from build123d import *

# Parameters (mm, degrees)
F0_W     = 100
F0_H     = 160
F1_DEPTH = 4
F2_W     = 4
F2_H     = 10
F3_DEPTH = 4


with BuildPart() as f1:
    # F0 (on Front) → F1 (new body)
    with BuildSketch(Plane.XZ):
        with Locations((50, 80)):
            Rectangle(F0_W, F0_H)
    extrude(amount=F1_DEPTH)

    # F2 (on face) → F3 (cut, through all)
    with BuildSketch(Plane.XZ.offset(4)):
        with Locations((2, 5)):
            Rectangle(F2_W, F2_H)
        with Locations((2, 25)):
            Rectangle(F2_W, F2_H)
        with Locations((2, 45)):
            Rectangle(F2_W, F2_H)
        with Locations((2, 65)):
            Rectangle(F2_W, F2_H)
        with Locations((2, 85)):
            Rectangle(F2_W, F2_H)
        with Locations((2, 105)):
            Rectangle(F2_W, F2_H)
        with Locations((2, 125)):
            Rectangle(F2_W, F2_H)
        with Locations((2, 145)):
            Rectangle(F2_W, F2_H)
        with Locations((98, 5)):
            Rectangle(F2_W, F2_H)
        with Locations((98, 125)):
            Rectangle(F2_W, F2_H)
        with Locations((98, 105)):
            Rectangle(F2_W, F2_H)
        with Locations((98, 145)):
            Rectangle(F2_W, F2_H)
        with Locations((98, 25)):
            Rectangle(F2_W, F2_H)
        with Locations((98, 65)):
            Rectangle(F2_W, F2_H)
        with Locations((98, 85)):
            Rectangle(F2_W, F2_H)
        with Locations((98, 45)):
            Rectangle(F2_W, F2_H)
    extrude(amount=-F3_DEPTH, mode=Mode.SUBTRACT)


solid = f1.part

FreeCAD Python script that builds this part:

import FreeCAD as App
import Part
import Sketcher
from FreeCAD import Vector


def add_polygon(sketch, points):
    """Adds a closed chain of lines whose ends are joined by coincident constraints."""
    first, n = sketch.GeometryCount, len(points)
    for a, b in zip(points, points[1:] + points[:1]):
        sketch.addGeometry(Part.LineSegment(App.Vector(*a, 0), App.Vector(*b, 0)), False)
    for i in range(n):
        sketch.addConstraint(Sketcher.Constraint("Coincident", first + i, 2, first + (i + 1) % n, 1))

doc = App.newDocument("Part")
body = doc.addObject("PartDesign::Body", "Body")

# Sketch on XZ plane
sketch1 = doc.addObject("Sketcher::SketchObject", "Sketch")
body.addObject(sketch1)
sketch1.AttachmentSupport = (doc.XZ_Plane, [""])
sketch1.MapMode = "FlatFace"
add_polygon(sketch1, [(0, 160), (0, 0), (100, 0), (100, 160)])  # lines 0-3
sketch1.addConstraint(Sketcher.Constraint("Vertical", 0))
sketch1.addConstraint(Sketcher.Constraint("Horizontal", 1))
sketch1.addConstraint(Sketcher.Constraint("Vertical", 2))
sketch1.addConstraint(Sketcher.Constraint("Horizontal", 3))
sketch1.addConstraint(Sketcher.Constraint("Coincident", 0, 2, -1, 1))
sketch1.addConstraint(Sketcher.Constraint("DistanceX", 1, 1, 1, 2, 100.0))
sketch1.addConstraint(Sketcher.Constraint("DistanceY", 0, 2, 0, 1, 160.0))
pad1 = doc.addObject("PartDesign::Pad", "Pad")
body.addObject(pad1)
pad1.Profile = sketch1
pad1.Length = 4

# Sketch on XZ plane
sketch2 = doc.addObject("Sketcher::SketchObject", "Sketch001")
body.addObject(sketch2)
sketch2.AttachmentSupport = (doc.XZ_Plane, [""])
sketch2.MapMode = "FlatFace"
sketch2.AttachmentOffset = App.Placement(Vector(0, 0, 4), App.Rotation())
add_polygon(sketch2, [(0, 10), (0, 0), (4, 0), (4, 10)])  # lines 0-3
add_polygon(sketch2, [(0, 30), (0, 20), (4, 20), (4, 30)])  # lines 4-7
add_polygon(sketch2, [(0, 50), (0, 40), (4, 40), (4, 50)])  # lines 8-11
add_polygon(sketch2, [(0, 70), (0, 60), (4, 60), (4, 70)])  # lines 12-15
add_polygon(sketch2, [(0, 90), (0, 80), (4, 80), (4, 90)])  # lines 16-19
add_polygon(sketch2, [(0, 110), (0, 100), (4, 100), (4, 110)])  # lines 20-23
add_polygon(sketch2, [(0, 130), (0, 120), (4, 120), (4, 130)])  # lines 24-27
add_polygon(sketch2, [(0, 150), (0, 140), (4, 140), (4, 150)])  # lines 28-31
add_polygon(sketch2, [(96, 10), (96, 0), (100, 0), (100, 10)])  # lines 32-35
add_polygon(sketch2, [(96, 130), (96, 120), (100, 120), (100, 130)])  # lines 36-39
add_polygon(sketch2, [(96, 110), (96, 100), (100, 100), (100, 110)])  # lines 40-43
add_polygon(sketch2, [(96, 150), (96, 140), (100, 140), (100, 150)])  # lines 44-47
add_polygon(sketch2, [(96, 30), (96, 20), (100, 20), (100, 30)])  # lines 48-51
add_polygon(sketch2, [(96, 70), (96, 60), (100, 60), (100, 70)])  # lines 52-55
add_polygon(sketch2, [(96, 90), (96, 80), (100, 80), (100, 90)])  # lines 56-59
add_polygon(sketch2, [(96, 50), (96, 40), (100, 40), (100, 50)])  # lines 60-63
sketch2.addConstraint(Sketcher.Constraint("Vertical", 0))
sketch2.addConstraint(Sketcher.Constraint("Horizontal", 1))
sketch2.addConstraint(Sketcher.Constraint("Vertical", 2))
sketch2.addConstraint(Sketcher.Constraint("Horizontal", 3))
sketch2.addConstraint(Sketcher.Constraint("Vertical", 4))
sketch2.addConstraint(Sketcher.Constraint("Horizontal", 5))
sketch2.addConstraint(Sketcher.Constraint("Vertical", 6))
sketch2.addConstraint(Sketcher.Constraint("Horizontal", 7))
sketch2.addConstraint(Sketcher.Constraint("Vertical", 8))
sketch2.addConstraint(Sketcher.Constraint("Horizontal", 9))
sketch2.addConstraint(Sketcher.Constraint("Vertical", 10))
sketch2.addConstraint(Sketcher.Constraint("Horizontal", 11))
sketch2.addConstraint(Sketcher.Constraint("Vertical", 12))
sketch2.addConstraint(Sketcher.Constraint("Horizontal", 13))
sketch2.addConstraint(Sketcher.Constraint("Vertical", 14))
sketch2.addConstraint(Sketcher.Constraint("Horizontal", 15))
sketch2.addConstraint(Sketcher.Constraint("Vertical", 16))
sketch2.addConstraint(Sketcher.Constraint("Horizontal", 17))
sketch2.addConstraint(Sketcher.Constraint("Vertical", 18))
sketch2.addConstraint(Sketcher.Constraint("Horizontal", 19))
sketch2.addConstraint(Sketcher.Constraint("Vertical", 20))
sketch2.addConstraint(Sketcher.Constraint("Horizontal", 21))
sketch2.addConstraint(Sketcher.Constraint("Vertical", 22))
sketch2.addConstraint(Sketcher.Constraint("Horizontal", 23))
sketch2.addConstraint(Sketcher.Constraint("Vertical", 24))
sketch2.addConstraint(Sketcher.Constraint("Horizontal", 25))
sketch2.addConstraint(Sketcher.Constraint("Vertical", 26))
sketch2.addConstraint(Sketcher.Constraint("Horizontal", 27))
sketch2.addConstraint(Sketcher.Constraint("Vertical", 28))
sketch2.addConstraint(Sketcher.Constraint("Horizontal", 29))
sketch2.addConstraint(Sketcher.Constraint("Vertical", 30))
sketch2.addConstraint(Sketcher.Constraint("Horizontal", 31))
sketch2.addConstraint(Sketcher.Constraint("Vertical", 32))
sketch2.addConstraint(Sketcher.Constraint("Horizontal", 33))
sketch2.addConstraint(Sketcher.Constraint("Vertical", 34))
sketch2.addConstraint(Sketcher.Constraint("Horizontal", 35))
sketch2.addConstraint(Sketcher.Constraint("Vertical", 36))
sketch2.addConstraint(Sketcher.Constraint("Horizontal", 37))
sketch2.addConstraint(Sketcher.Constraint("Vertical", 38))
sketch2.addConstraint(Sketcher.Constraint("Horizontal", 39))
sketch2.addConstraint(Sketcher.Constraint("Vertical", 40))
sketch2.addConstraint(Sketcher.Constraint("Horizontal", 41))
sketch2.addConstraint(Sketcher.Constraint("Vertical", 42))
sketch2.addConstraint(Sketcher.Constraint("Horizontal", 43))
sketch2.addConstraint(Sketcher.Constraint("Vertical", 44))
sketch2.addConstraint(Sketcher.Constraint("Horizontal", 45))
sketch2.addConstraint(Sketcher.Constraint("Vertical", 46))
sketch2.addConstraint(Sketcher.Constraint("Horizontal", 47))
sketch2.addConstraint(Sketcher.Constraint("Vertical", 48))
sketch2.addConstraint(Sketcher.Constraint("Horizontal", 49))
sketch2.addConstraint(Sketcher.Constraint("Vertical", 50))
sketch2.addConstraint(Sketcher.Constraint("Horizontal", 51))
sketch2.addConstraint(Sketcher.Constraint("Vertical", 52))
sketch2.addConstraint(Sketcher.Constraint("Horizontal", 53))
sketch2.addConstraint(Sketcher.Constraint("Vertical", 54))
sketch2.addConstraint(Sketcher.Constraint("Horizontal", 55))
sketch2.addConstraint(Sketcher.Constraint("Vertical", 56))
sketch2.addConstraint(Sketcher.Constraint("Horizontal", 57))
sketch2.addConstraint(Sketcher.Constraint("Vertical", 58))
sketch2.addConstraint(Sketcher.Constraint("Horizontal", 59))
sketch2.addConstraint(Sketcher.Constraint("Vertical", 60))
sketch2.addConstraint(Sketcher.Constraint("Horizontal", 61))
sketch2.addConstraint(Sketcher.Constraint("Vertical", 62))
sketch2.addConstraint(Sketcher.Constraint("Horizontal", 63))
sketch2.addConstraint(Sketcher.Constraint("Coincident", 0, 2, -1, 1))
sketch2.addConstraint(Sketcher.Constraint("PointOnObject", 4, 2, -2))
sketch2.addConstraint(Sketcher.Constraint("PointOnObject", 8, 2, -2))
sketch2.addConstraint(Sketcher.Constraint("PointOnObject", 12, 2, -2))
sketch2.addConstraint(Sketcher.Constraint("PointOnObject", 16, 2, -2))
sketch2.addConstraint(Sketcher.Constraint("PointOnObject", 20, 2, -2))
sketch2.addConstraint(Sketcher.Constraint("PointOnObject", 24, 2, -2))
sketch2.addConstraint(Sketcher.Constraint("PointOnObject", 28, 2, -2))
sketch2.addConstraint(Sketcher.Constraint("PointOnObject", 32, 2, -1))
sketch2.addConstraint(Sketcher.Constraint("Horizontal", 3, 2, 34, 2))
sketch2.addConstraint(Sketcher.Constraint("Horizontal", 25, 2, 36, 2))
sketch2.addConstraint(Sketcher.Constraint("Horizontal", 27, 2, 38, 2))
sketch2.addConstraint(Sketcher.Constraint("Horizontal", 21, 2, 40, 2))
sketch2.addConstraint(Sketcher.Constraint("Horizontal", 23, 2, 42, 2))
sketch2.addConstraint(Sketcher.Constraint("Horizontal", 29, 2, 44, 2))
sketch2.addConstraint(Sketcher.Constraint("Horizontal", 31, 2, 46, 2))
sketch2.addConstraint(Sketcher.Constraint("Horizontal", 5, 2, 48, 2))
sketch2.addConstraint(Sketcher.Constraint("Horizontal", 7, 2, 50, 2))
sketch2.addConstraint(Sketcher.Constraint("Horizontal", 13, 2, 52, 2))
sketch2.addConstraint(Sketcher.Constraint("Horizontal", 15, 2, 54, 2))
sketch2.addConstraint(Sketcher.Constraint("Horizontal", 17, 2, 56, 2))
sketch2.addConstraint(Sketcher.Constraint("Horizontal", 19, 2, 58, 2))
sketch2.addConstraint(Sketcher.Constraint("Horizontal", 9, 2, 60, 2))
sketch2.addConstraint(Sketcher.Constraint("Horizontal", 11, 2, 62, 2))
sketch2.addConstraint(Sketcher.Constraint("Vertical", 2, 2, 5, 2))
sketch2.addConstraint(Sketcher.Constraint("Vertical", 6, 2, 9, 2))
sketch2.addConstraint(Sketcher.Constraint("Vertical", 10, 2, 13, 2))
sketch2.addConstraint(Sketcher.Constraint("Vertical", 14, 2, 17, 2))
sketch2.addConstraint(Sketcher.Constraint("Vertical", 18, 2, 21, 2))
sketch2.addConstraint(Sketcher.Constraint("Vertical", 22, 2, 25, 2))
sketch2.addConstraint(Sketcher.Constraint("Vertical", 26, 2, 29, 2))
sketch2.addConstraint(Sketcher.Constraint("Vertical", 35, 2, 36, 2))
sketch2.addConstraint(Sketcher.Constraint("Vertical", 34, 2, 37, 2))
sketch2.addConstraint(Sketcher.Constraint("Vertical", 39, 2, 40, 2))
sketch2.addConstraint(Sketcher.Constraint("Vertical", 38, 2, 41, 2))
sketch2.addConstraint(Sketcher.Constraint("Vertical", 43, 2, 44, 2))
sketch2.addConstraint(Sketcher.Constraint("Vertical", 42, 2, 45, 2))
sketch2.addConstraint(Sketcher.Constraint("Vertical", 47, 2, 48, 2))
sketch2.addConstraint(Sketcher.Constraint("Vertical", 46, 2, 49, 2))
sketch2.addConstraint(Sketcher.Constraint("Vertical", 51, 2, 52, 2))
sketch2.addConstraint(Sketcher.Constraint("Vertical", 50, 2, 53, 2))
sketch2.addConstraint(Sketcher.Constraint("Vertical", 55, 2, 56, 2))
sketch2.addConstraint(Sketcher.Constraint("Vertical", 54, 2, 57, 2))
sketch2.addConstraint(Sketcher.Constraint("Vertical", 59, 2, 60, 2))
sketch2.addConstraint(Sketcher.Constraint("Vertical", 58, 2, 61, 2))
sketch2.addConstraint(Sketcher.Constraint("Equal", 31, 33))
sketch2.addConstraint(Sketcher.Constraint("Equal", 2, 4))
sketch2.addConstraint(Sketcher.Constraint("Equal", 6, 8))
sketch2.addConstraint(Sketcher.Constraint("Equal", 10, 12))
sketch2.addConstraint(Sketcher.Constraint("Equal", 14, 16))
sketch2.addConstraint(Sketcher.Constraint("Equal", 18, 20))
sketch2.addConstraint(Sketcher.Constraint("Equal", 22, 24))
sketch2.addConstraint(Sketcher.Constraint("Equal", 26, 28))
sketch2.addConstraint(Sketcher.Constraint("DistanceX", 1, 1, 1, 2, 4.0))
sketch2.addConstraint(Sketcher.Constraint("DistanceY", 0, 2, 0, 1, 10.0))
sketch2.addConstraint(Sketcher.Constraint("DistanceY", -1, 1, 4, 2, 20.0))
sketch2.addConstraint(Sketcher.Constraint("DistanceY", -1, 1, 8, 2, 40.0))
sketch2.addConstraint(Sketcher.Constraint("DistanceY", -1, 1, 12, 2, 60.0))
sketch2.addConstraint(Sketcher.Constraint("DistanceY", -1, 1, 16, 2, 80.0))
sketch2.addConstraint(Sketcher.Constraint("DistanceY", -1, 1, 20, 2, 100.0))
sketch2.addConstraint(Sketcher.Constraint("DistanceY", -1, 1, 24, 2, 120.0))
sketch2.addConstraint(Sketcher.Constraint("DistanceY", -1, 1, 28, 2, 140.0))
sketch2.addConstraint(Sketcher.Constraint("DistanceX", -1, 1, 32, 2, 96.0))
pocket1 = doc.addObject("PartDesign::Pocket", "Pocket")
body.addObject(pocket1)
pocket1.Profile = sketch2
pocket1.Type = "ThroughAll"

doc.recompute()
